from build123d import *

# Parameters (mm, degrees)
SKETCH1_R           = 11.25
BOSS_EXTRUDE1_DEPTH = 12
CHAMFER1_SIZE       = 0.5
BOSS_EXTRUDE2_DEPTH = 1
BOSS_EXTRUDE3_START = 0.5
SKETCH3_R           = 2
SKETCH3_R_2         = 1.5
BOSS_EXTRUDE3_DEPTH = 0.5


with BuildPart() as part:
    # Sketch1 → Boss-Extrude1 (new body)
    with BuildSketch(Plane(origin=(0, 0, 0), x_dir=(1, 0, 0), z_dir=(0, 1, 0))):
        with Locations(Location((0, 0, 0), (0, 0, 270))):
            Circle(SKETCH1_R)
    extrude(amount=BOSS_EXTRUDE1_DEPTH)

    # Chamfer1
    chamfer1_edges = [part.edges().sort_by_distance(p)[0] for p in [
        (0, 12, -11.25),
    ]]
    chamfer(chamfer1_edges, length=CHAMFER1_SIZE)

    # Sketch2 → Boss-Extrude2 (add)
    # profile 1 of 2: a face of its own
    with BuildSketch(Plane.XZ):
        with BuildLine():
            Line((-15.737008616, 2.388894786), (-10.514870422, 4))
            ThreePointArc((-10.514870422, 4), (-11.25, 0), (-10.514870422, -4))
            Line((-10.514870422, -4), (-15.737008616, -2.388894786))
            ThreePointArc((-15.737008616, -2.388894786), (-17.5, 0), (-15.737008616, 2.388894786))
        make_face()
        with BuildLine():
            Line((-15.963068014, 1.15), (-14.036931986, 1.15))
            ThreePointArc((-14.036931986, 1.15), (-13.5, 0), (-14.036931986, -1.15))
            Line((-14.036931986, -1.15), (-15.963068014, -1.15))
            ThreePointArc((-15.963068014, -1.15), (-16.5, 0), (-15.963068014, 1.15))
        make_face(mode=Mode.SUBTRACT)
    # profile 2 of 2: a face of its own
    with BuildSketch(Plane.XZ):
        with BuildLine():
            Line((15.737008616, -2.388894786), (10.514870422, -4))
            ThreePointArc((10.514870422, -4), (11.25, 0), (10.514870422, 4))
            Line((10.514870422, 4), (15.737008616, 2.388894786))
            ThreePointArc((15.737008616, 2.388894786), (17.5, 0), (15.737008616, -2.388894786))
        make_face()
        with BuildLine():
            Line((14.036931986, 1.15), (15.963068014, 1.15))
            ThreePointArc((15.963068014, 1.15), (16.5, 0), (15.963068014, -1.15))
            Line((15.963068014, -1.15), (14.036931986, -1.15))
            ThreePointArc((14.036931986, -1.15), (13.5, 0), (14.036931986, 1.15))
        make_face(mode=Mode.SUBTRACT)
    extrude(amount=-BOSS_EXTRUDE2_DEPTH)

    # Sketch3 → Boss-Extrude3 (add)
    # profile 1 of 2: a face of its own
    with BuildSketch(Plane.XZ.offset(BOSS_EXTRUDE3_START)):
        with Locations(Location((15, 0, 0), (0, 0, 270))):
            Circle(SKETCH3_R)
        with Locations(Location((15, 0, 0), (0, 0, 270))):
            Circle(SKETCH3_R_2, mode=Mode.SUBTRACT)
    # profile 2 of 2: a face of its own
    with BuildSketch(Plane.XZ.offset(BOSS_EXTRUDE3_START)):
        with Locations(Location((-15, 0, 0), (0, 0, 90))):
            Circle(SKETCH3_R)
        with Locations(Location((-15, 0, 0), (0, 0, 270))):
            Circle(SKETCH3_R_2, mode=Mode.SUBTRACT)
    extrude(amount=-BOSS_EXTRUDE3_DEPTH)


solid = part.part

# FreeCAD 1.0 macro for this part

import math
import FreeCAD as App
import Part
import Sketcher
from FreeCAD import Vector


def edges_at(feature, points):
    """Names of the edges that pass closest to the given points."""
    edges = feature.Shape.Edges
    near = lambda p: min(range(len(edges)), key=lambda i: edges[i].distToShape(Part.Vertex(*p))[0])
    return sorted({f"Edge{near(p) + 1}" for p in points})

doc = App.newDocument("Part")
body = doc.addObject("PartDesign::Body", "Body")

# Sketch on XZ plane
sketch1 = body.newObject("Sketcher::SketchObject", "Sketch")
sketch1.AttachmentSupport = (doc.getObject("XZ_Plane"), [""])
sketch1.MapMode = "FlatFace"
sketch1.addGeometry(Part.Circle(Vector(0, 0, 0), Vector(0, 0, 1), 11), False)
sketch1.addConstraint(Sketcher.Constraint("Coincident", 0, 3, -1, 1))
sketch1.addConstraint(Sketcher.Constraint("Diameter", 0, 22.5))
pad1 = body.newObject("PartDesign::Pad", "Pad")
pad1.Profile = sketch1
pad1.Length = 12
pad1.Reversed = True
doc.recompute()

chamfer = body.newObject("PartDesign::Chamfer", "Chamfer")
chamfer.Base = (pad1, edges_at(pad1, [(0, 12, -11.25)]))
chamfer.Size = 0.5

# Sketch on XZ plane
sketch2 = body.newObject("Sketcher::SketchObject", "Sketch001")
sketch2.AttachmentSupport = (doc.getObject("XZ_Plane"), [""])
sketch2.MapMode = "FlatFace"
sketch2.addGeometry(Part.LineSegment(Vector(-10.5, 4, 0), Vector(-15.7, 2.4, 0)), False)
sketch2.addGeometry(Part.ArcOfCircle(Part.Circle(Vector(-15, 0, 0), Vector(0, 0, 1), 2.5), math.radians(107), math.radians(253)), False)
sketch2.addGeometry(Part.LineSegment(Vector(-15.7, -2.4, 0), Vector(-10.5, -4, 0)), False)
sketch2.addGeometry(Part.ArcOfCircle(Part.Circle(Vector(0, 0, 0), Vector(0, 0, 1), 11.2), math.radians(159), math.radians(201)), False)
sketch2.addGeometry(Part.LineSegment(Vector(-16, 1.1, 0), Vector(-14, 1.1, 0)), False)
sketch2.addGeometry(Part.ArcOfCircle(Part.Circle(Vector(-15, 0, 0), Vector(0, 0, 1), 1.5), math.radians(-50), math.radians(50)), False)
sketch2.addGeometry(Part.LineSegment(Vector(-14, -1.1, 0), Vector(-16, -1.1, 0)), False)
sketch2.addGeometry(Part.ArcOfCircle(Part.Circle(Vector(-15, 0, 0), Vector(0, 0, 1), 1.5), math.radians(130), math.radians(230)), False)
sketch2.addGeometry(Part.LineSegment(Vector(10.5, -4, 0), Vector(15.7, -2.4, 0)), False)
sketch2.addGeometry(Part.ArcOfCircle(Part.Circle(Vector(15, 0, 0), Vector(0, 0, 1), 2.5), math.radians(-73), math.radians(73)), False)
sketch2.addGeometry(Part.LineSegment(Vector(15.7, 2.4, 0), Vector(10.5, 4, 0)), False)
sketch2.addGeometry(Part.ArcOfCircle(Part.Circle(Vector(0, 0, 0), Vector(0, 0, 1), 11.2), math.radians(-21), math.radians(21)), False)
sketch2.addGeometry(Part.LineSegment(Vector(14, 1.1, 0), Vector(16, 1.1, 0)), False)
sketch2.addGeometry(Part.ArcOfCircle(Part.Circle(Vector(15, 0, 0), Vector(0, 0, 1), 1.5), math.radians(-50), math.radians(50)), False)
sketch2.addGeometry(Part.LineSegment(Vector(16, -1.1, 0), Vector(14, -1.1, 0)), False)
sketch2.addGeometry(Part.ArcOfCircle(Part.Circle(Vector(15, 0, 0), Vector(0, 0, 1), 1.5), math.radians(130), math.radians(230)), False)
sketch2.addConstraint(Sketcher.Constraint("Tangent", 0, 2, 1, 1))
sketch2.addConstraint(Sketcher.Constraint("Tangent", 1, 2, 2, 1))
sketch2.addConstraint(Sketcher.Constraint("Coincident", 2, 2, 3, 2))
sketch2.addConstraint(Sketcher.Constraint("Coincident", 3, 1, 0, 1))
sketch2.addConstraint(Sketcher.Constraint("Coincident", 4, 2, 5, 2))
sketch2.addConstraint(Sketcher.Constraint("Coincident", 5, 1, 6, 1))
sketch2.addConstraint(Sketcher.Constraint("Coincident", 6, 2, 7, 2))
sketch2.addConstraint(Sketcher.Constraint("Coincident", 7, 1, 4, 1))
sketch2.addConstraint(Sketcher.Constraint("Tangent", 8, 2, 9, 1))
sketch2.addConstraint(Sketcher.Constraint("Tangent", 9, 2, 10, 1))
sketch2.addConstraint(Sketcher.Constraint("Coincident", 10, 2, 11, 2))
sketch2.addConstraint(Sketcher.Constraint("Coincident", 11, 1, 8, 1))
sketch2.addConstraint(Sketcher.Constraint("Coincident", 12, 2, 13, 2))
sketch2.addConstraint(Sketcher.Constraint("Coincident", 13, 1, 14, 1))
sketch2.addConstraint(Sketcher.Constraint("Coincident", 14, 2, 15, 2))
sketch2.addConstraint(Sketcher.Constraint("Coincident", 15, 1, 12, 1))
sketch2.addConstraint(Sketcher.Constraint("Horizontal", 4))
sketch2.addConstraint(Sketcher.Constraint("Horizontal", 6))
sketch2.addConstraint(Sketcher.Constraint("Horizontal", 12))
sketch2.addConstraint(Sketcher.Constraint("Horizontal", 14))
sketch2.addConstraint(Sketcher.Constraint("Coincident", 3, 3, -1, 1))
sketch2.addConstraint(Sketcher.Constraint("Coincident", 11, 3, -1, 1))
sketch2.addConstraint(Sketcher.Constraint("Coincident", 5, 3, 1, 3))
sketch2.addConstraint(Sketcher.Constraint("Coincident", 7, 3, 1, 3))
sketch2.addConstraint(Sketcher.Constraint("Coincident", 13, 3, 9, 3))
sketch2.addConstraint(Sketcher.Constraint("Coincident", 15, 3, 9, 3))
sketch2.addConstraint(Sketcher.Constraint("Equal", 5, 7))
sketch2.addConstraint(Sketcher.Constraint("Equal", 1, 9))
sketch2.addConstraint(Sketcher.Constraint("Equal", 3, 11))
sketch2.addConstraint(Sketcher.Constraint("Equal", 7, 13))
sketch2.addConstraint(Sketcher.Constraint("Equal", 13, 15))
sketch2.addConstraint(Sketcher.Constraint("Symmetric", 1, 3, 9, 3, -1, 1))
sketch2.addConstraint(Sketcher.Constraint("Symmetric", 1, 2, 8, 2, -2))
sketch2.addConstraint(Sketcher.Constraint("Parallel", 0, 8))
sketch2.addConstraint(Sketcher.Constraint("Parallel", 2, 10))
sketch2.addConstraint(Sketcher.Constraint("Horizontal", 7, 1, 12, 2))
sketch2.addConstraint(Sketcher.Constraint("Horizontal", 6, 2, 13, 1))
sketch2.addConstraint(Sketcher.Constraint("Vertical", 4, 2, 5, 1))
sketch2.addConstraint(Sketcher.Constraint("Radius", 1, 2.5))
sketch2.addConstraint(Sketcher.Constraint("Radius", 5, 1.5))
sketch2.addConstraint(Sketcher.Constraint("Radius", 3, 11.25))
sketch2.addConstraint(Sketcher.Constraint("DistanceX", 1, 3, -1, 1, 15.0))
sketch2.addConstraint(Sketcher.Constraint("DistanceY", 2, 2, -1, 1, 4.0))
sketch2.addConstraint(Sketcher.Constraint("DistanceY", 5, 1, 4, 2, 2.3))
pad2 = body.newObject("PartDesign::Pad", "Pad001")
pad2.Profile = sketch2
pad2.Length = 1
pad2.Reversed = True

# Sketch on XZ plane
sketch3 = body.newObject("Sketcher::SketchObject", "Sketch002")
sketch3.AttachmentSupport = (doc.getObject("XZ_Plane"), [""])
sketch3.MapMode = "FlatFace"
sketch3.AttachmentOffset = App.Placement(Vector(0, 0, 0.5), App.Rotation())
sketch3.addGeometry(Part.Circle(Vector(15, 0, 0), Vector(0, 0, 1), 2), False)
sketch3.addGeometry(Part.Circle(Vector(15, 0, 0), Vector(0, 0, 1), 1.5), False)
sketch3.addGeometry(Part.Circle(Vector(-15, 0, 0), Vector(0, 0, 1), 2), False)
sketch3.addGeometry(Part.Circle(Vector(-15, 0, 0), Vector(0, 0, 1), 1.5), False)
sketch3.addConstraint(Sketcher.Constraint("Coincident", 1, 3, 0, 3))
sketch3.addConstraint(Sketcher.Constraint("Coincident", 3, 3, 2, 3))
sketch3.addConstraint(Sketcher.Constraint("Equal", 0, 2))
sketch3.addConstraint(Sketcher.Constraint("Equal", 1, 3))
sketch3.addConstraint(Sketcher.Constraint("Symmetric", 0, 3, 2, 3, -1, 1))
sketch3.addConstraint(Sketcher.Constraint("PointOnObject", 0, 3, -1))
sketch3.addConstraint(Sketcher.Constraint("Diameter", 0, 4.0))
sketch3.addConstraint(Sketcher.Constraint("Diameter", 1, 3.0))
sketch3.addConstraint(Sketcher.Constraint("DistanceX", -1, 1, 0, 3, 15.0))
pad3 = body.newObject("PartDesign::Pad", "Pad002")
pad3.Profile = sketch3
pad3.Length = 0.5
pad3.Reversed = True

doc.recompute()
